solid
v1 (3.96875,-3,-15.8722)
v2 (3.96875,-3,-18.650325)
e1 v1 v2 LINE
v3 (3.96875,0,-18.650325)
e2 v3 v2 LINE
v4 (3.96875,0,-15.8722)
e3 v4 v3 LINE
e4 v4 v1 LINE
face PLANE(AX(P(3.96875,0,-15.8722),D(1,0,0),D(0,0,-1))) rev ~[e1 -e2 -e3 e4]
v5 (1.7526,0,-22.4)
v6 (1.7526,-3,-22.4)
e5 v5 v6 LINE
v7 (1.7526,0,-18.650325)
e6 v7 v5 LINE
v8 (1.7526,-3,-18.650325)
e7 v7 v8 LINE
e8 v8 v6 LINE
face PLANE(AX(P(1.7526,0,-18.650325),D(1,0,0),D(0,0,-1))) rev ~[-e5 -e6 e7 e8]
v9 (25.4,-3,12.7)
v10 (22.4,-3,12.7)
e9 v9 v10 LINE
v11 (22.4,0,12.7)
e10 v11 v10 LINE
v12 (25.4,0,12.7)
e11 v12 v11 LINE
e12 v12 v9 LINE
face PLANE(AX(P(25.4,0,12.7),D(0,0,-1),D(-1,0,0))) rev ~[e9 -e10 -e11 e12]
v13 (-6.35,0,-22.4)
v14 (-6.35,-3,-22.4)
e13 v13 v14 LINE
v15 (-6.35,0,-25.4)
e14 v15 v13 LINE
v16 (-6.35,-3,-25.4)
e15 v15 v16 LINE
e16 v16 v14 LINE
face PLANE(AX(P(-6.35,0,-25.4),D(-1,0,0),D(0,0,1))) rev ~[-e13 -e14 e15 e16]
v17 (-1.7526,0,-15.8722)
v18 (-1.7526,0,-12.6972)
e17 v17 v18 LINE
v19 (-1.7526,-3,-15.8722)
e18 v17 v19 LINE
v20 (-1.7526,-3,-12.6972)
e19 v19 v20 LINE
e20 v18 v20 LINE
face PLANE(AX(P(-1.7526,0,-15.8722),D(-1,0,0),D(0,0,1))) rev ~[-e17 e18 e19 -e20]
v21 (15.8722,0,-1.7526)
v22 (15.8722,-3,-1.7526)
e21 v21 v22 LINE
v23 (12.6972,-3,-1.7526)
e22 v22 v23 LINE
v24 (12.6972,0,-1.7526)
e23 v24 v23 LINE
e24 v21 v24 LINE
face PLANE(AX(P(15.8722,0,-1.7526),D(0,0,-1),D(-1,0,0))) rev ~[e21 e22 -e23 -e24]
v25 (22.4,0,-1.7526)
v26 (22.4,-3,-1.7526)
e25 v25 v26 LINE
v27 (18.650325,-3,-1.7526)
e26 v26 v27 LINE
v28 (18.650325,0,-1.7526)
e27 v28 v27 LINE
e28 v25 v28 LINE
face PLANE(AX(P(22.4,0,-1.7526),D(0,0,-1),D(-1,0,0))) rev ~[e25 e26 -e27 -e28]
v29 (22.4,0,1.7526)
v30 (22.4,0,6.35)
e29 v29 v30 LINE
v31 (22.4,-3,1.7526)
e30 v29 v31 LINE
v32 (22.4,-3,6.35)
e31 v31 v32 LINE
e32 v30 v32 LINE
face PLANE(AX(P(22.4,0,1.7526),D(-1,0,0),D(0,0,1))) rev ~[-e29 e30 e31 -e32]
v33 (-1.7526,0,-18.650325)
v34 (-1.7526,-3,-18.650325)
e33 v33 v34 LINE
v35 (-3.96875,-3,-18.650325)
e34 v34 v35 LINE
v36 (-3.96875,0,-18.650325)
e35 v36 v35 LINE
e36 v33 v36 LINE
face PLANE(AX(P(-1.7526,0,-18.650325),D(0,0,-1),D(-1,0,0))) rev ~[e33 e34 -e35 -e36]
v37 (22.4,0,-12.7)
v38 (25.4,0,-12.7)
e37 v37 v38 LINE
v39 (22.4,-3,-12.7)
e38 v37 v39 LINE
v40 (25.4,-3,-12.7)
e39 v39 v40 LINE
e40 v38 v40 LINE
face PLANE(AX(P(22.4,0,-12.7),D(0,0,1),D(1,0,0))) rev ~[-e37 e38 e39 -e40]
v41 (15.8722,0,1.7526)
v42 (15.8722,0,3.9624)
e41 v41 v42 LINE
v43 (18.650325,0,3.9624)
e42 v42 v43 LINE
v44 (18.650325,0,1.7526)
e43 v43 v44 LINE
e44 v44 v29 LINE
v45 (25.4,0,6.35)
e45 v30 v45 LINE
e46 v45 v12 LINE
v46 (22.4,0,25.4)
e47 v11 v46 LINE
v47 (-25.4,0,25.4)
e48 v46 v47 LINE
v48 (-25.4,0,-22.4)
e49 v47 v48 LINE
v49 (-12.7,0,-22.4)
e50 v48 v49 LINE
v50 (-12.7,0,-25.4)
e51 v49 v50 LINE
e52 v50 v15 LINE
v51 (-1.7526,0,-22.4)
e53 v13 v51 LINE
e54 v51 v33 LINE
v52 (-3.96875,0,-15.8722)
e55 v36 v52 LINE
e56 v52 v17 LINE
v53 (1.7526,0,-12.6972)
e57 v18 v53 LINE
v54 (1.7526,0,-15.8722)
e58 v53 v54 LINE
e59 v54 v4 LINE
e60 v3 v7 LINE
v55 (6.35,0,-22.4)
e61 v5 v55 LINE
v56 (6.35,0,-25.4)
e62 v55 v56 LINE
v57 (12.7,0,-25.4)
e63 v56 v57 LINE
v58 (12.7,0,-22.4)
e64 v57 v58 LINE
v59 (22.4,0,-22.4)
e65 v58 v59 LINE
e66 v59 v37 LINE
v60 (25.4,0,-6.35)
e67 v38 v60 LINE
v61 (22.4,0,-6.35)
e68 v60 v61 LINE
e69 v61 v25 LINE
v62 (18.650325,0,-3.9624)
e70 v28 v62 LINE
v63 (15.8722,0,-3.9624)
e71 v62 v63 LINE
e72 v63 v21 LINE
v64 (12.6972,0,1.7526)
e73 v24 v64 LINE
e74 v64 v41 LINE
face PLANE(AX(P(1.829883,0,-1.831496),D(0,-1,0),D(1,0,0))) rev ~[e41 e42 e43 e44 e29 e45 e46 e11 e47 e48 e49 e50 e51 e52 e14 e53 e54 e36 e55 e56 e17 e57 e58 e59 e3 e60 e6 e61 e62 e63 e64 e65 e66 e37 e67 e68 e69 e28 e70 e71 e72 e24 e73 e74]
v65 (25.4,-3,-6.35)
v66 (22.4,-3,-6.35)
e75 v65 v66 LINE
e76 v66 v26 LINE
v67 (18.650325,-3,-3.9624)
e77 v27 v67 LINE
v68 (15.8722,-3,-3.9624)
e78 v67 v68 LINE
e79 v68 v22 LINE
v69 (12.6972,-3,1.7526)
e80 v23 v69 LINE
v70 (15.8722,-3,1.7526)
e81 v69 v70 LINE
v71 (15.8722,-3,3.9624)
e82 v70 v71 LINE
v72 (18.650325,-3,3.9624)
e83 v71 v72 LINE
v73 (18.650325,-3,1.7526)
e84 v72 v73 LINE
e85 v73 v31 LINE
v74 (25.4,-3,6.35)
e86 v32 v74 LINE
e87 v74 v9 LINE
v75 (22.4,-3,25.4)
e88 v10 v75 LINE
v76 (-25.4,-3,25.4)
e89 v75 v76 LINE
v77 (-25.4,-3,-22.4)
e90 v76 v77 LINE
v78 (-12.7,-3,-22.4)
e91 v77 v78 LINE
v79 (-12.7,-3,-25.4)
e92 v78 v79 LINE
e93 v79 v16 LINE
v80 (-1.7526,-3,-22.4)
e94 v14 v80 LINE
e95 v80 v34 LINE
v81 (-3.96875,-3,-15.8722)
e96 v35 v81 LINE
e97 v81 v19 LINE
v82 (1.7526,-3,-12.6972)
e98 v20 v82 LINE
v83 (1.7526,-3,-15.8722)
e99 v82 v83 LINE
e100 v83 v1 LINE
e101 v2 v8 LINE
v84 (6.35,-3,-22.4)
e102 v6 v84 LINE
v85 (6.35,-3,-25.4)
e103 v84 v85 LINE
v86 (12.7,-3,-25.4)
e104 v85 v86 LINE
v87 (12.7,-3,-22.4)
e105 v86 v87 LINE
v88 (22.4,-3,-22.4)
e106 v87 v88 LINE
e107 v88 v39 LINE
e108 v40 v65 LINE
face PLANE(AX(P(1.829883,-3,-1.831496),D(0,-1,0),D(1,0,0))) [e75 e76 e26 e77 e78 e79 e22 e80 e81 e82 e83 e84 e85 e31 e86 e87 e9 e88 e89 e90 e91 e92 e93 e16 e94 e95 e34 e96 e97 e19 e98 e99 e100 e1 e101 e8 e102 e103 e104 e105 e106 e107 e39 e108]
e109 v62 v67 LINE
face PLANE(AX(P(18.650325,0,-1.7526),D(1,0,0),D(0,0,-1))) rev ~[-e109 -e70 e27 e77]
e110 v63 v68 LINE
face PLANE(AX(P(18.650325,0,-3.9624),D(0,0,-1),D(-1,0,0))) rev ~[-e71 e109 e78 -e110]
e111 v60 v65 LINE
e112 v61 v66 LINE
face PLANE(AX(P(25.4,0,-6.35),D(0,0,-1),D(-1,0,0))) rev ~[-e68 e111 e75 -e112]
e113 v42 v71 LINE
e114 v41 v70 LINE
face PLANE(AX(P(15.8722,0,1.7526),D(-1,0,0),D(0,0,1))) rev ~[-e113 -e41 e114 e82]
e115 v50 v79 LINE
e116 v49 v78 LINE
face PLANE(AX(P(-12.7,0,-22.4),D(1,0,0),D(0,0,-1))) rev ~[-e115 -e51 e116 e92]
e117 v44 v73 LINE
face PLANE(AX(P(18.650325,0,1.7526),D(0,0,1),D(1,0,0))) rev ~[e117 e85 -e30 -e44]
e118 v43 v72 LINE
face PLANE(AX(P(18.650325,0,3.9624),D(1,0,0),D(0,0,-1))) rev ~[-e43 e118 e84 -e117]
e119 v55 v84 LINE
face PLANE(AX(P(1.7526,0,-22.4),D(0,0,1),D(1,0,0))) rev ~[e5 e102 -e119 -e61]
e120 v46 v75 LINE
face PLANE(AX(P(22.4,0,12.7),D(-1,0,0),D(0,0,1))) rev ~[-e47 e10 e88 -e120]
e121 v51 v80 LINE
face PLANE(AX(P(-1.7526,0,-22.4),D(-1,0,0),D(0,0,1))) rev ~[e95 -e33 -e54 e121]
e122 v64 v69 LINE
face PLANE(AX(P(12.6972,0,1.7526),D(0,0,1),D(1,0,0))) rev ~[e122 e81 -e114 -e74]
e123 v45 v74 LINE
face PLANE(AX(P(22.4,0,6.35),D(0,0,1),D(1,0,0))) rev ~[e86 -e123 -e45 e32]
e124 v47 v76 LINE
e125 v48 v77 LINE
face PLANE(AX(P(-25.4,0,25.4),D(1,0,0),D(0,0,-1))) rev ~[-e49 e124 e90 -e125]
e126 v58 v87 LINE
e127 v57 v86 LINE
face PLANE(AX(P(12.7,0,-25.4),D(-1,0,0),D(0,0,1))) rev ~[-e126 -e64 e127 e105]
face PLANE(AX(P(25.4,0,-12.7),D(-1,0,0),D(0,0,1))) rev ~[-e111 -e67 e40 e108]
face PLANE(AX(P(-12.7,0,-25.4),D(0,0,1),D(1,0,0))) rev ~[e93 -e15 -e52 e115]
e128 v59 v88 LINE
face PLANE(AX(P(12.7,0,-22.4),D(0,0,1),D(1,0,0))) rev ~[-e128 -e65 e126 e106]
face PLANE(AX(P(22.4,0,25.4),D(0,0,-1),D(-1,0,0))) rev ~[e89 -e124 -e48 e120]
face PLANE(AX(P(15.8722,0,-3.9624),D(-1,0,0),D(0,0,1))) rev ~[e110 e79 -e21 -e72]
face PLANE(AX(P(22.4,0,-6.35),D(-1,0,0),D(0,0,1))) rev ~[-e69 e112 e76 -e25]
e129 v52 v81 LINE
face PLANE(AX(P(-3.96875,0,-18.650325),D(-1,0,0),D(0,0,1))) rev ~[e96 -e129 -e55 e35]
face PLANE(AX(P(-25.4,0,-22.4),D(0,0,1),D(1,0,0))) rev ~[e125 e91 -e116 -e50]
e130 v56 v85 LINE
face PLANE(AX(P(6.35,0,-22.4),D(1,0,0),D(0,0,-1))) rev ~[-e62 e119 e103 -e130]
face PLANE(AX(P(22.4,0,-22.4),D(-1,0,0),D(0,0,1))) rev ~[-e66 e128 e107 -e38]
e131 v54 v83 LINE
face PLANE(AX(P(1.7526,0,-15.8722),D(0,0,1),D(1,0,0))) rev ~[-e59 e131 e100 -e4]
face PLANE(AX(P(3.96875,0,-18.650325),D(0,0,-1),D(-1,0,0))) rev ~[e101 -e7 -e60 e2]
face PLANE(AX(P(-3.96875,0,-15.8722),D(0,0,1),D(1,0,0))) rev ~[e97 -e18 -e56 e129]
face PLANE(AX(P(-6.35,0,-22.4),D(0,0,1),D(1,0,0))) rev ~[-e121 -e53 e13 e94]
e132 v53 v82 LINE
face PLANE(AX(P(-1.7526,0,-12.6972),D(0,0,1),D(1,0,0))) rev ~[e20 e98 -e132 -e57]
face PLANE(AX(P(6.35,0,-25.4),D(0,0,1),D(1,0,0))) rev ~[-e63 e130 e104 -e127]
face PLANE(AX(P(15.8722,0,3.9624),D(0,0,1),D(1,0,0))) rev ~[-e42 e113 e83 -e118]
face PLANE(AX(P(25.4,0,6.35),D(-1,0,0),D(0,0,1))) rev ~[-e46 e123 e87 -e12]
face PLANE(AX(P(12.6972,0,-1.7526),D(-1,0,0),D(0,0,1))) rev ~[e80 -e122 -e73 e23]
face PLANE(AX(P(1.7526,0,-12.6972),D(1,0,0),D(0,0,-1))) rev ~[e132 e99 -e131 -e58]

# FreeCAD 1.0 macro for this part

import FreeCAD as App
import Part
import Sketcher
Q = App.Units.Quantity

doc = App.newDocument("Part")
body = doc.addObject("PartDesign::Body", "Body")

sketch1 = body.newObject("Sketcher::SketchObject", "Sketch")
sketch1.AttachmentSupport = (doc.getObject("XZ_Plane"), [""])
sketch1.MapMode = "FlatFace"
sketch1.addGeometry([
    Part.LineSegment(App.Vector(22.4, 25.4, 0), App.Vector(-25.4, 25.4, 0)),
    Part.LineSegment(App.Vector(-25.4, 25.4, 0), App.Vector(-25.4, -22.4, 0)),
    Part.LineSegment(App.Vector(-25.4, -22.4, 0), App.Vector(-12.7, -22.4, 0)),
    Part.LineSegment(App.Vector(-12.7, -22.4, 0), App.Vector(-12.7, -25.4, 0)),
    Part.LineSegment(App.Vector(-12.7, -25.4, 0), App.Vector(-6.3, -25.4, 0)),
    Part.LineSegment(App.Vector(-6.3, -25.4, 0), App.Vector(-6.3, -22.4, 0)),
    Part.LineSegment(App.Vector(-6.3, -22.4, 0), App.Vector(-1.8, -22.4, 0)),
    Part.LineSegment(App.Vector(-1.8, -22.4, 0), App.Vector(-1.8, -18.7, 0)),
    Part.LineSegment(App.Vector(-1.8, -18.7, 0), App.Vector(-4, -18.7, 0)),
    Part.LineSegment(App.Vector(-4, -18.7, 0), App.Vector(-4, -15.9, 0)),
    Part.LineSegment(App.Vector(-4, -15.9, 0), App.Vector(-1.8, -15.9, 0)),
    Part.LineSegment(App.Vector(-1.8, -15.9, 0), App.Vector(-1.8, -12.7, 0)),
    Part.LineSegment(App.Vector(-1.8, -12.7, 0), App.Vector(1.8, -12.7, 0)),
    Part.LineSegment(App.Vector(1.8, -12.7, 0), App.Vector(1.8, -15.9, 0)),
    Part.LineSegment(App.Vector(1.8, -15.9, 0), App.Vector(4, -15.9, 0)),
    Part.LineSegment(App.Vector(4, -15.9, 0), App.Vector(4, -18.7, 0)),
    Part.LineSegment(App.Vector(4, -18.7, 0), App.Vector(1.8, -18.7, 0)),
    Part.LineSegment(App.Vector(1.8, -18.7, 0), App.Vector(1.8, -22.4, 0)),
    Part.LineSegment(App.Vector(1.8, -22.4, 0), App.Vector(6.3, -22.4, 0)),
    Part.LineSegment(App.Vector(6.3, -22.4, 0), App.Vector(6.3, -25.4, 0)),
    Part.LineSegment(App.Vector(6.3, -25.4, 0), App.Vector(12.7, -25.4, 0)),
    Part.LineSegment(App.Vector(12.7, -25.4, 0), App.Vector(12.7, -22.4, 0)),
    Part.LineSegment(App.Vector(12.7, -22.4, 0), App.Vector(22.4, -22.4, 0)),
    Part.LineSegment(App.Vector(22.4, -22.4, 0), App.Vector(22.4, -12.7, 0)),
    Part.LineSegment(App.Vector(22.4, -12.7, 0), App.Vector(25.4, -12.7, 0)),
    Part.LineSegment(App.Vector(25.4, -12.7, 0), App.Vector(25.4, -6.3, 0)),
    Part.LineSegment(App.Vector(25.4, -6.3, 0), App.Vector(22.4, -6.3, 0)),
    Part.LineSegment(App.Vector(22.4, -6.3, 0), App.Vector(22.4, -1.8, 0)),
    Part.LineSegment(App.Vector(22.4, -1.8, 0), App.Vector(18.7, -1.8, 0)),
    Part.LineSegment(App.Vector(18.7, -1.8, 0), App.Vector(18.7, -4, 0)),
    Part.LineSegment(App.Vector(18.7, -4, 0), App.Vector(15.9, -4, 0)),
    Part.LineSegment(App.Vector(15.9, -4, 0), App.Vector(15.9, -1.8, 0)),
    Part.LineSegment(App.Vector(15.9, -1.8, 0), App.Vector(12.7, -1.8, 0)),
    Part.LineSegment(App.Vector(12.7, -1.8, 0), App.Vector(12.7, 1.8, 0)),
    Part.LineSegment(App.Vector(12.7, 1.8, 0), App.Vector(15.9, 1.8, 0)),
    Part.LineSegment(App.Vector(15.9, 1.8, 0), App.Vector(15.9, 4, 0)),
    Part.LineSegment(App.Vector(15.9, 4, 0), App.Vector(18.7, 4, 0)),
    Part.LineSegment(App.Vector(18.7, 4, 0), App.Vector(18.7, 1.8, 0)),
    Part.LineSegment(App.Vector(18.7, 1.8, 0), App.Vector(22.4, 1.8, 0)),
    Part.LineSegment(App.Vector(22.4, 1.8, 0), App.Vector(22.4, 6.3, 0)),
    Part.LineSegment(App.Vector(22.4, 6.3, 0), App.Vector(25.4, 6.3, 0)),
    Part.LineSegment(App.Vector(25.4, 6.3, 0), App.Vector(25.4, 12.7, 0)),
    Part.LineSegment(App.Vector(25.4, 12.7, 0), App.Vector(22.4, 12.7, 0)),
    Part.LineSegment(App.Vector(22.4, 12.7, 0), App.Vector(22.4, 25.4, 0)),
], False)
sketch1.addConstraint([
    Sketcher.Constraint("Coincident", 0, 2, 1, 1),
    Sketcher.Constraint("Coincident", 1, 2, 2, 1),
    Sketcher.Constraint("Coincident", 2, 2, 3, 1),
    Sketcher.Constraint("Coincident", 3, 2, 4, 1),
    Sketcher.Constraint("Coincident", 4, 2, 5, 1),
    Sketcher.Constraint("Coincident", 5, 2, 6, 1),
    Sketcher.Constraint("Coincident", 6, 2, 7, 1),
    Sketcher.Constraint("Coincident", 7, 2, 8, 1),
    Sketcher.Constraint("Coincident", 8, 2, 9, 1),
    Sketcher.Constraint("Coincident", 9, 2, 10, 1),
    Sketcher.Constraint("Coincident", 10, 2, 11, 1),
    Sketcher.Constraint("Coincident", 11, 2, 12, 1),
    Sketcher.Constraint("Coincident", 12, 2, 13, 1),
    Sketcher.Constraint("Coincident", 13, 2, 14, 1),
    Sketcher.Constraint("Coincident", 14, 2, 15, 1),
    Sketcher.Constraint("Coincident", 15, 2, 16, 1),
    Sketcher.Constraint("Coincident", 16, 2, 17, 1),
    Sketcher.Constraint("Coincident", 17, 2, 18, 1),
    Sketcher.Constraint("Coincident", 18, 2, 19, 1),
    Sketcher.Constraint("Coincident", 19, 2, 20, 1),
    Sketcher.Constraint("Coincident", 20, 2, 21, 1),
    Sketcher.Constraint("Coincident", 21, 2, 22, 1),
    Sketcher.Constraint("Coincident", 22, 2, 23, 1),
    Sketcher.Constraint("Coincident", 23, 2, 24, 1),
    Sketcher.Constraint("Coincident", 24, 2, 25, 1),
    Sketcher.Constraint("Coincident", 25, 2, 26, 1),
    Sketcher.Constraint("Coincident", 26, 2, 27, 1),
    Sketcher.Constraint("Coincident", 27, 2, 28, 1),
    Sketcher.Constraint("Coincident", 28, 2, 29, 1),
    Sketcher.Constraint("Coincident", 29, 2, 30, 1),
    Sketcher.Constraint("Coincident", 30, 2, 31, 1),
    Sketcher.Constraint("Coincident", 31, 2, 32, 1),
    Sketcher.Constraint("Coincident", 32, 2, 33, 1),
    Sketcher.Constraint("Coincident", 33, 2, 34, 1),
    Sketcher.Constraint("Coincident", 34, 2, 35, 1),
    Sketcher.Constraint("Coincident", 35, 2, 36, 1),
    Sketcher.Constraint("Coincident", 36, 2, 37, 1),
    Sketcher.Constraint("Coincident", 37, 2, 38, 1),
    Sketcher.Constraint("Coincident", 38, 2, 39, 1),
    Sketcher.Constraint("Coincident", 39, 2, 40, 1),
    Sketcher.Constraint("Coincident", 40, 2, 41, 1),
    Sketcher.Constraint("Coincident", 41, 2, 42, 1),
    Sketcher.Constraint("Coincident", 42, 2, 43, 1),
    Sketcher.Constraint("Coincident", 43, 2, 0, 1),
    Sketcher.Constraint("Horizontal", 0),
    Sketcher.Constraint("Vertical", 1),
    Sketcher.Constraint("Horizontal", 2),
    Sketcher.Constraint("Vertical", 3),
    Sketcher.Constraint("Horizontal", 4),
    Sketcher.Constraint("Vertical", 5),
    Sketcher.Constraint("Horizontal", 6),
    Sketcher.Constraint("Vertical", 7),
    Sketcher.Constraint("Horizontal", 8),
    Sketcher.Constraint("Vertical", 9),
    Sketcher.Constraint("Horizontal", 10),
    Sketcher.Constraint("Vertical", 11),
    Sketcher.Constraint("Horizontal", 12),
    Sketcher.Constraint("Vertical", 13),
    Sketcher.Constraint("Horizontal", 14),
    Sketcher.Constraint("Vertical", 15),
    Sketcher.Constraint("Horizontal", 16),
    Sketcher.Constraint("Vertical", 17),
    Sketcher.Constraint("Horizontal", 18),
    Sketcher.Constraint("Vertical", 19),
    Sketcher.Constraint("Horizontal", 20),
    Sketcher.Constraint("Vertical", 21),
    Sketcher.Constraint("Horizontal", 22),
    Sketcher.Constraint("Vertical", 23),
    Sketcher.Constraint("Horizontal", 24),
    Sketcher.Constraint("Vertical", 25),
    Sketcher.Constraint("Horizontal", 26),
    Sketcher.Constraint("Vertical", 27),
    Sketcher.Constraint("Horizontal", 28),
    Sketcher.Constraint("Vertical", 29),
    Sketcher.Constraint("Horizontal", 30),
    Sketcher.Constraint("Vertical", 31),
    Sketcher.Constraint("Horizontal", 32),
    Sketcher.Constraint("Vertical", 33),
    Sketcher.Constraint("Horizontal", 34),
    Sketcher.Constraint("Vertical", 35),
    Sketcher.Constraint("Horizontal", 36),
    Sketcher.Constraint("Vertical", 37),
    Sketcher.Constraint("Horizontal", 38),
    Sketcher.Constraint("Vertical", 39),
    Sketcher.Constraint("Horizontal", 40),
    Sketcher.Constraint("Vertical", 41),
    Sketcher.Constraint("Horizontal", 42),
    Sketcher.Constraint("Vertical", 43),
    Sketcher.Constraint("Symmetric", 10, 2, 13, 2, -2),
    Sketcher.Constraint("Symmetric", 8, 2, 15, 2, -2),
    Sketcher.Constraint("Symmetric", 6, 2, 17, 2, -2),
    Sketcher.Constraint("Symmetric", 4, 2, 19, 2, -2),
    Sketcher.Constraint("Symmetric", 2, 2, 21, 2, -2),
    Sketcher.Constraint("Symmetric", 31, 2, 34, 2, -1),
    Sketcher.Constraint("Symmetric", 29, 2, 36, 2, -1),
    Sketcher.Constraint("Symmetric", 27, 2, 38, 2, -1),
    Sketcher.Constraint("Symmetric", 25, 2, 40, 2, -1),
    Sketcher.Constraint("Symmetric", 23, 2, 42, 2, -1),
    Sketcher.Constraint("Horizontal", 2, 2, 5, 2),
    Sketcher.Constraint("Horizontal", 28, 2, 31, 2),
    Sketcher.Constraint("Vertical", 7, 2, 10, 2),
    Sketcher.Constraint("Vertical", 23, 2, 26, 2),
    Sketcher.Constraint("Equal", 0, 1),
    Sketcher.Constraint("Equal", 42, 3),
    Sketcher.Constraint("Equal", 38, 7),
    Sketcher.Constraint("Equal", 36, 9),
    Sketcher.Constraint("Equal", 34, 11),
    Sketcher.Constraint("Equal", 22, 23),
    Sketcher.Constraint("Equal", 20, 25),
    Sketcher.Constraint("Equal", 18, 27),
    Sketcher.Constraint("Equal", 12, 33),
    Sketcher.Constraint("DistanceX", 2, 1, 2, 2, Q("0.5 in")),
    Sketcher.Constraint("DistanceX", 0, 2, -1, 1, Q("1 in")),
    Sketcher.Constraint("DistanceY", 3, 2, -1, 1, Q("1 in")),
    Sketcher.Constraint("DistanceX", 4, 1, 4, 2, Q("0.25 in")),
    Sketcher.Constraint("DistanceX", 6, 1, 6, 2, Q("0.181 in")),
    Sketcher.Constraint("DistanceX", 30, 2, 30, 1, Q("0.109375 in")),
    Sketcher.Constraint("DistanceX", 32, 2, 32, 1, Q("0.125 in")),
    Sketcher.Constraint("DistanceY", 29, 2, 29, 1, Q("0.087 in")),
    Sketcher.Constraint("DistanceX", 8, 2, -1, 1, Q("0.15625 in")),
    Sketcher.Constraint("DistanceY", 6, 2, 9, 2, Q("0.257 in")),
    Sketcher.Constraint("DistanceX", 0, 2, 0, 1, Q("47.8 mm")),
])
pad1 = body.newObject("PartDesign::Pad", "Pad")
pad1.Profile = sketch1
pad1.Length = 3

doc.recompute()
